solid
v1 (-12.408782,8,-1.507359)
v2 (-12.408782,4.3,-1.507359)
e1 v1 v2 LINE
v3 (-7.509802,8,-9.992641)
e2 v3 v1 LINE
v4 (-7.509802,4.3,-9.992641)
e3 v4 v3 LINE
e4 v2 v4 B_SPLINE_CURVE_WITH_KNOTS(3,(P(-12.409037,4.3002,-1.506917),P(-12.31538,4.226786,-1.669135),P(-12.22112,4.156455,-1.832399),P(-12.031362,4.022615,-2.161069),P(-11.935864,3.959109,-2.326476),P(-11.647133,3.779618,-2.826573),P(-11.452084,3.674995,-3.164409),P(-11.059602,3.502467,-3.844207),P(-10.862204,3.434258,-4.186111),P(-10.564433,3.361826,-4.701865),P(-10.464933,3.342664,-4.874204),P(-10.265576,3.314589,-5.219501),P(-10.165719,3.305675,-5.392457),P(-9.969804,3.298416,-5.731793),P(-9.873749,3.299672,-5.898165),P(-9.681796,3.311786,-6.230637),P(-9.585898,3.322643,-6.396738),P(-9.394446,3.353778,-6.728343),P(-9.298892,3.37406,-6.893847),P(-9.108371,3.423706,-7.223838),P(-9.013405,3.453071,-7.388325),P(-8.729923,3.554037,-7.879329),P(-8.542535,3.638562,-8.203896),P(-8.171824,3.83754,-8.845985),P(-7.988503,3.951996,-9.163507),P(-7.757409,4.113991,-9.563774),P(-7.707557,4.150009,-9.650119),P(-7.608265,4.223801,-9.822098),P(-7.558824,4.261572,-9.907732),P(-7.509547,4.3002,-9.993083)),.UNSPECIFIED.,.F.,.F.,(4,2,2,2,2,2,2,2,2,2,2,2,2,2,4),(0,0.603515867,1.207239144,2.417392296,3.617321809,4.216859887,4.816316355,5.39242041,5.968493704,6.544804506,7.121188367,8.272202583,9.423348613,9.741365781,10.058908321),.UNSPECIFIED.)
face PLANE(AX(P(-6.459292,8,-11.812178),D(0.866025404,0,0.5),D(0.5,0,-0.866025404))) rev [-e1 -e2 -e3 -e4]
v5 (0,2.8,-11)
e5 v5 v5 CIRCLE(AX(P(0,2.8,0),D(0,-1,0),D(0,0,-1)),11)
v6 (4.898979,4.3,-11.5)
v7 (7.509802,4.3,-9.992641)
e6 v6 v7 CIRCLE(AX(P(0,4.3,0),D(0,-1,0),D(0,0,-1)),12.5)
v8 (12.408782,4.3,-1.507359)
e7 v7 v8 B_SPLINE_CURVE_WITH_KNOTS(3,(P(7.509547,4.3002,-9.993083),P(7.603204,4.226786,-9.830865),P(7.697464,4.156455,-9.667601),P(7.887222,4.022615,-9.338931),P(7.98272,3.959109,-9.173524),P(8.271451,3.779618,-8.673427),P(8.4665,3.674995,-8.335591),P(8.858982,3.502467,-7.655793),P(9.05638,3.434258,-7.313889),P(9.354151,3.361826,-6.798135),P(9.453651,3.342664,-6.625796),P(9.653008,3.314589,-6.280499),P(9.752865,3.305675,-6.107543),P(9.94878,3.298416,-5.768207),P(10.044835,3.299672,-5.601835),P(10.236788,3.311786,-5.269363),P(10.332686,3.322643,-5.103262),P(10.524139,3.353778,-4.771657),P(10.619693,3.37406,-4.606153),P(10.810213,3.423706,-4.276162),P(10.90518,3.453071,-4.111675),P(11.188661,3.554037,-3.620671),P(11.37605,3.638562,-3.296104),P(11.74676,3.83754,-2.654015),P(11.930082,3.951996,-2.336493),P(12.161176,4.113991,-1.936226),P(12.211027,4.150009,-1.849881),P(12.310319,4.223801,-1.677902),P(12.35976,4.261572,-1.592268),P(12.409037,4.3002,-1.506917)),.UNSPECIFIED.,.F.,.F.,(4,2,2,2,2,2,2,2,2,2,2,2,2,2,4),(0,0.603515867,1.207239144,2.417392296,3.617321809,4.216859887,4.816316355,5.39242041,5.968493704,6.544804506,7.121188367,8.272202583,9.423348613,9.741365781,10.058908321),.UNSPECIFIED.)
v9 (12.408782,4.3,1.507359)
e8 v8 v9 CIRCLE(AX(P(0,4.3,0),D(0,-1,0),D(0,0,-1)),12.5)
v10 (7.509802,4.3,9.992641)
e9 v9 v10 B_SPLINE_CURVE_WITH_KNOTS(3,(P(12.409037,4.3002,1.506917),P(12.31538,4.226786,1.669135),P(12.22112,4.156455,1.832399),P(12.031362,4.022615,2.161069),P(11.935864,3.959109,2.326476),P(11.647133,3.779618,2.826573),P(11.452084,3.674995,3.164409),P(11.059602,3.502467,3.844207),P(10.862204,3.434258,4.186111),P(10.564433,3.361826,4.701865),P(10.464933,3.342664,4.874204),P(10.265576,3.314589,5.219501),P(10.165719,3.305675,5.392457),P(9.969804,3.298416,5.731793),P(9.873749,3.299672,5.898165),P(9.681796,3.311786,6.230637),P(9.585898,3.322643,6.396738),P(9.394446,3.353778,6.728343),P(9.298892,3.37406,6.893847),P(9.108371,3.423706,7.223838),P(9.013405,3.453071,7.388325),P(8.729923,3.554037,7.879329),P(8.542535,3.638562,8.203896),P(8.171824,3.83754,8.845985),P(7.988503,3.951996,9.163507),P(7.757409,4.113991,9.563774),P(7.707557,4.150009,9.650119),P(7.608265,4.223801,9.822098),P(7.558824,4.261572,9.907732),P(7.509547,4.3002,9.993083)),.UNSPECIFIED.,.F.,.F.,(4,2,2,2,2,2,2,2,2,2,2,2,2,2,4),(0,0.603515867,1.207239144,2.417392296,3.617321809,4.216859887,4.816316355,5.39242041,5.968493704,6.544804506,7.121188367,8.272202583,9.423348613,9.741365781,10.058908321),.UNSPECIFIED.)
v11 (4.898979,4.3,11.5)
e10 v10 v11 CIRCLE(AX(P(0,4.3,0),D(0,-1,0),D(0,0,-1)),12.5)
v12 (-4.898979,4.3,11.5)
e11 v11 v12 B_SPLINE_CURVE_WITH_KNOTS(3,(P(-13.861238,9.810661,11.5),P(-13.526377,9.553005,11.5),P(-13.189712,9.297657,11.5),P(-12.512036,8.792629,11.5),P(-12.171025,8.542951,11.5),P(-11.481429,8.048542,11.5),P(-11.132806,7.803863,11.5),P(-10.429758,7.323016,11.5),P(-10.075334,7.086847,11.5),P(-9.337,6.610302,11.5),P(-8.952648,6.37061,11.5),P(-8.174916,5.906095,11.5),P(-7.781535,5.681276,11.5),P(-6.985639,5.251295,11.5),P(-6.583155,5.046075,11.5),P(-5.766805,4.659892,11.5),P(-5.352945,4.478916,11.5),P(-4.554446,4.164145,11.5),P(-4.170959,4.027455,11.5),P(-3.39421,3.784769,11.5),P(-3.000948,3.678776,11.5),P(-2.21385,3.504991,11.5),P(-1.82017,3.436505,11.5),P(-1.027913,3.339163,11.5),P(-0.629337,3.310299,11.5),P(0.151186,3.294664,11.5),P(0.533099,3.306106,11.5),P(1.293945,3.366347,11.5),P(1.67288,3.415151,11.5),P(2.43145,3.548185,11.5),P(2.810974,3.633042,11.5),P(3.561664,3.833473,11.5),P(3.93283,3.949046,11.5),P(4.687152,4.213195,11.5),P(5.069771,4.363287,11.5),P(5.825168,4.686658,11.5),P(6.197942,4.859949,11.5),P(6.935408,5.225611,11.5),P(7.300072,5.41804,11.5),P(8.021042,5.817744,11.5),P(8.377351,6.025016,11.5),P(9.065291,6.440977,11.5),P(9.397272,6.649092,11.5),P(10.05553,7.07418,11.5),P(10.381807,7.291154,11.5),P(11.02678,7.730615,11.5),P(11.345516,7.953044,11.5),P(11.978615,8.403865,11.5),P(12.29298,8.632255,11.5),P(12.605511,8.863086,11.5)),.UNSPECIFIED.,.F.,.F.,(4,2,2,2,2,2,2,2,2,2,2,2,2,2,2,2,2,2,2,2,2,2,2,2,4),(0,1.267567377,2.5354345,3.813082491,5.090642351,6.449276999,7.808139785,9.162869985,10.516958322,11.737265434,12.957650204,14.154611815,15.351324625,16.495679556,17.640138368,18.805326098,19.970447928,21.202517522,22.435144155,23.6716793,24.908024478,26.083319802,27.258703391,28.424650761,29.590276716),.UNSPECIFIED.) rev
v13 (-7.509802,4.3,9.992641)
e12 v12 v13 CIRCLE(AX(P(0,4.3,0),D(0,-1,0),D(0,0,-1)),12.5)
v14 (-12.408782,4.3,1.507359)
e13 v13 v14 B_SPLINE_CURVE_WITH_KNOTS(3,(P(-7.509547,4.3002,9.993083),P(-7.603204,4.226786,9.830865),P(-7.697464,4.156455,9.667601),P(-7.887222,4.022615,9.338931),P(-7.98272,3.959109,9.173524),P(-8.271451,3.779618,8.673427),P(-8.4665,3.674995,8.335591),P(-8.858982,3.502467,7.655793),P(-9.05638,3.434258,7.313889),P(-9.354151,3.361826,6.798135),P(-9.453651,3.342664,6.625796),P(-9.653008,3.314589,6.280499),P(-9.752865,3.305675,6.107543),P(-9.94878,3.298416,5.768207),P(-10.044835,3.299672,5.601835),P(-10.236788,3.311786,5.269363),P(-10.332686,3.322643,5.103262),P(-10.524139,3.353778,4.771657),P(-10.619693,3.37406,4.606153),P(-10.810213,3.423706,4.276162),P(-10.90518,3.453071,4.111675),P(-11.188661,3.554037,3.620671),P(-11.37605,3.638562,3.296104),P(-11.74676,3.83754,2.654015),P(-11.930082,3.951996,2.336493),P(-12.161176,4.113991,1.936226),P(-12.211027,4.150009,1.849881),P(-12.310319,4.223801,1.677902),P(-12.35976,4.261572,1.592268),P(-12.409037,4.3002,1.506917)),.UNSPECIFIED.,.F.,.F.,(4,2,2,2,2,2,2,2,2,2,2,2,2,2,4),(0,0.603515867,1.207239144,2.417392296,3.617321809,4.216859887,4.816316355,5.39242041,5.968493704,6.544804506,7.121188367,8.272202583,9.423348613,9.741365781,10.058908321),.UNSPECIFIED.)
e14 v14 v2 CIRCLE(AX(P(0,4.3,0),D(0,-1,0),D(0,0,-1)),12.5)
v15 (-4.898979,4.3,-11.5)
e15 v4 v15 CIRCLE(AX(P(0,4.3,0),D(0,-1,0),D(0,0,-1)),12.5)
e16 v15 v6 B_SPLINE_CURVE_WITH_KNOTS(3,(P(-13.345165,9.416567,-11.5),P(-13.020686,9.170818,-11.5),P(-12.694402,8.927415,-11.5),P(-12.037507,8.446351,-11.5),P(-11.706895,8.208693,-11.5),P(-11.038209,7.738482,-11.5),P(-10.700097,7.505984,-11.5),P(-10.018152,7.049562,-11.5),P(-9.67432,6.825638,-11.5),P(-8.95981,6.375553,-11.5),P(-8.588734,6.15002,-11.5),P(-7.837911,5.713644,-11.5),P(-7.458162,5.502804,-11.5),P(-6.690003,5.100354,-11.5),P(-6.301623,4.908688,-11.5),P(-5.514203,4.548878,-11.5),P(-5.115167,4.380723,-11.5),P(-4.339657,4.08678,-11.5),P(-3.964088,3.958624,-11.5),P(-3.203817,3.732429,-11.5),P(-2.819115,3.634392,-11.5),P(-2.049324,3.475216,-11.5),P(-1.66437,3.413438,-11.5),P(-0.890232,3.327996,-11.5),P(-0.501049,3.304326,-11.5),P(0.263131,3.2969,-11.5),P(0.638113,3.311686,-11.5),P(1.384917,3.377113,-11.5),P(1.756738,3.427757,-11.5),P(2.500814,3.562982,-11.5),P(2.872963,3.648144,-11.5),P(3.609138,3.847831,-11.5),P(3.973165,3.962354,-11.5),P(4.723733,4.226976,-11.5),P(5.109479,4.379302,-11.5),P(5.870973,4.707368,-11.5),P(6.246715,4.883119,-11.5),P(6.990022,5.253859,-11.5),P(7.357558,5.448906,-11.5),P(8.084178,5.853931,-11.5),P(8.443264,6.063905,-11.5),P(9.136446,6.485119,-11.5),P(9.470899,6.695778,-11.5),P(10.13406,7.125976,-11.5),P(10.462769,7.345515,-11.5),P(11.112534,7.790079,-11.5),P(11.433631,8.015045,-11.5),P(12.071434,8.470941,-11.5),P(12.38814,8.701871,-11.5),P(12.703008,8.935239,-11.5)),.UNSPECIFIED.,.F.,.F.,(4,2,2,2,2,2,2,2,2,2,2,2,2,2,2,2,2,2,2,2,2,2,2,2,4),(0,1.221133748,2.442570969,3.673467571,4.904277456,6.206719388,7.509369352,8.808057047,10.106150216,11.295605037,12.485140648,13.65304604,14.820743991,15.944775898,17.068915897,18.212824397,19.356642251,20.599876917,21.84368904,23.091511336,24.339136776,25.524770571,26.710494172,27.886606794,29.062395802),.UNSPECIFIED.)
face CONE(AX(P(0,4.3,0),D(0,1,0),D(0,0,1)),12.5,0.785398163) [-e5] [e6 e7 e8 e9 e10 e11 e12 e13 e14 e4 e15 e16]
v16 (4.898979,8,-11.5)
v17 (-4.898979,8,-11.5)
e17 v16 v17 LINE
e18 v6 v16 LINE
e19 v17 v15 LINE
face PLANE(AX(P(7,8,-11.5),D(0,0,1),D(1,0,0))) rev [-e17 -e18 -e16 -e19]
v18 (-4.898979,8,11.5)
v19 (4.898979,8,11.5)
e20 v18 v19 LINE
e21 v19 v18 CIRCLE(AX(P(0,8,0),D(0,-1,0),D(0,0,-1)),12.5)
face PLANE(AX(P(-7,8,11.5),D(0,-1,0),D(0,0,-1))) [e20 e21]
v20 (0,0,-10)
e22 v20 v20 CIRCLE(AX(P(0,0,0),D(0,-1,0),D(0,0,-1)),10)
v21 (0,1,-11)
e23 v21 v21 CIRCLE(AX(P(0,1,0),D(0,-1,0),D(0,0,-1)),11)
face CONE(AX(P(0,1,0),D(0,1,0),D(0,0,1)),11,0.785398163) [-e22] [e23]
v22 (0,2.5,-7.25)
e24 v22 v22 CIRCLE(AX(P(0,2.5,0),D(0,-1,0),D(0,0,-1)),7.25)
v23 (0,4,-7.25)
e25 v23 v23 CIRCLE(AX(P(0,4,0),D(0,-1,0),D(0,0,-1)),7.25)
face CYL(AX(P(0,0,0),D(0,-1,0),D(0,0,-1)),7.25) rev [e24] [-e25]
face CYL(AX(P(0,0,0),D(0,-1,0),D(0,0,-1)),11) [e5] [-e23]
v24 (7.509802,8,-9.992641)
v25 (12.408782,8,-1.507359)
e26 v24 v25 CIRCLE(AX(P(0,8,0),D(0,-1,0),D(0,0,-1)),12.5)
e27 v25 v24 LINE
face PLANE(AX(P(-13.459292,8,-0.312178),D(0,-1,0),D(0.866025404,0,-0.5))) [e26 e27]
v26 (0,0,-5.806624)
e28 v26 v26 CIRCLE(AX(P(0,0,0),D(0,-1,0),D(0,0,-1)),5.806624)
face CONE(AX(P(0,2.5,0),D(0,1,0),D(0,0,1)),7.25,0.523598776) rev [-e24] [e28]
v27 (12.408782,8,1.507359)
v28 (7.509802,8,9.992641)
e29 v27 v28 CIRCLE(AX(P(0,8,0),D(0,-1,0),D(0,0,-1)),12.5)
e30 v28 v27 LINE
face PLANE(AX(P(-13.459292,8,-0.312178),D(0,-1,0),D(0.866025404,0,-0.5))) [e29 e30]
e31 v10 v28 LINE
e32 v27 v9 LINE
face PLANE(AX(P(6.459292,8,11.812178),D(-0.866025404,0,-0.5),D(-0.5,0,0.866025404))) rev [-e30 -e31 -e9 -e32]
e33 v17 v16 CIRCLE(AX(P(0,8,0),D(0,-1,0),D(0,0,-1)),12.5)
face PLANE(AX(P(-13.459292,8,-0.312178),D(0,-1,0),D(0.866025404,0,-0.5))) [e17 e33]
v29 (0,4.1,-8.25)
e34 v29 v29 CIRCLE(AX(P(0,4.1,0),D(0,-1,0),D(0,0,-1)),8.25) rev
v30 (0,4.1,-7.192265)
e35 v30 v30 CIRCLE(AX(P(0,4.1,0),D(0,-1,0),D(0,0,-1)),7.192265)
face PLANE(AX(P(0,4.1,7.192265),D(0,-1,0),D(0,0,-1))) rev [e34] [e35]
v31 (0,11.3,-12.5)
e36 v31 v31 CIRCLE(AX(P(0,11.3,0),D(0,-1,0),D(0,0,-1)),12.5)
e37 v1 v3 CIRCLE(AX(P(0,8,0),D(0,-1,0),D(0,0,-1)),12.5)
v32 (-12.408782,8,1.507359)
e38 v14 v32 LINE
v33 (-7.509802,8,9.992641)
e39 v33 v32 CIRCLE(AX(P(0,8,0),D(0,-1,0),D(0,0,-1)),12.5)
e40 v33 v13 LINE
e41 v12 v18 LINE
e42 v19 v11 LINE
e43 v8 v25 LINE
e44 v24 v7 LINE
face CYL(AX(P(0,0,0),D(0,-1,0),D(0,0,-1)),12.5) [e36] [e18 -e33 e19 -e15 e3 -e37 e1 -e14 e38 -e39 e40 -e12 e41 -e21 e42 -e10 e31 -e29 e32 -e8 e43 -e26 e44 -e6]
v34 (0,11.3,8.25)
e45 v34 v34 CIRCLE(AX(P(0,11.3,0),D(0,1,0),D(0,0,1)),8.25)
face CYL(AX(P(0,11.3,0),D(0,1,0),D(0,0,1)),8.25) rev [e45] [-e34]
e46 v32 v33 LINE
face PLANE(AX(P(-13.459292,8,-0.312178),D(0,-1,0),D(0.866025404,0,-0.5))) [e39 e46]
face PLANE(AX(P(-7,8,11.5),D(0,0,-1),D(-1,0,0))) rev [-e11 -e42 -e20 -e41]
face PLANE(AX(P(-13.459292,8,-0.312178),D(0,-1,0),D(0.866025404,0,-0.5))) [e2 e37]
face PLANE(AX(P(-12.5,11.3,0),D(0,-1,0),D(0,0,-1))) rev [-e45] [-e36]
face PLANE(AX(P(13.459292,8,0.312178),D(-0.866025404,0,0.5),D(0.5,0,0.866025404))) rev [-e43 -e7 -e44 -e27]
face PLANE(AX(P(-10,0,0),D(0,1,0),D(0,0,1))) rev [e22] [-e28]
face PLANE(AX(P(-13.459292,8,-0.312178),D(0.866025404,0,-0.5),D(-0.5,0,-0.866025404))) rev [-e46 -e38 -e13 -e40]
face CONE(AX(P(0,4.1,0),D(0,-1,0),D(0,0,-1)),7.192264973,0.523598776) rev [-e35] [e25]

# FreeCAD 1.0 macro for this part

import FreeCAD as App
import Part
import Sketcher

V = App.Vector
Q = App.Units.Quantity

doc = App.newDocument("Part")
body = doc.addObject("PartDesign::Body", "Body")

# Sketch on XY plane
sketch1 = body.newObject("Sketcher::SketchObject", "Sketch")
sketch1.AttachmentSupport = (doc.getObject("XY_Plane"), [""])
sketch1.MapMode = "FlatFace"
sketch1.addGeometry([
    Part.LineSegment(V(-12.5, 11.3, 0), V(-12.5, 4.3, 0)),  # 0
    Part.LineSegment(V(-12.5, 4.3, 0), V(-11, 2.8, 0)),  # 1
    Part.LineSegment(V(-11, 2.8, 0), V(-11, 1, 0)),  # 2
    Part.LineSegment(V(-11, 1, 0), V(-10, 0, 0)),  # 3
    Part.LineSegment(V(-10, 0, 0), V(0, 0, 0)),  # 4
    Part.LineSegment(V(0, 0, 0), V(0, 11.3, 0)),  # 5
    Part.LineSegment(V(0, 11.3, 0), V(-12.5, 11.3, 0)),  # 6
], False)
sketch1.addConstraint([
    Sketcher.Constraint("Coincident", 0, 2, 1, 1),
    Sketcher.Constraint("Coincident", 1, 2, 2, 1),
    Sketcher.Constraint("Coincident", 2, 2, 3, 1),
    Sketcher.Constraint("Coincident", 3, 2, 4, 1),
    Sketcher.Constraint("Coincident", 4, 2, 5, 1),
    Sketcher.Constraint("Coincident", 5, 2, 6, 1),
    Sketcher.Constraint("Coincident", 6, 2, 0, 1),
    Sketcher.Constraint("Vertical", 0),
    Sketcher.Constraint("Vertical", 2),
    Sketcher.Constraint("Horizontal", 4),
    Sketcher.Constraint("Vertical", 5),
    Sketcher.Constraint("Horizontal", 6),
    Sketcher.Constraint("Coincident", 4, 2, -1, 1),
    Sketcher.Constraint("Parallel", 1, 3),
    Sketcher.Constraint("DistanceX", 4, 1, 4, 2, Q("10 mm")),
    Sketcher.Constraint("DistanceY", 0, 2, 0, 1, Q("7 mm")),
    Sketcher.Constraint("Angle", 1, Q("-45 deg")),
    Sketcher.Constraint("DistanceX", 6, 2, 6, 1, Q("12.5 mm")),
    Sketcher.Constraint("DistanceY", 2, 2, 2, 1, Q("1.8 mm")),
    Sketcher.Constraint("DistanceX", 1, 2, -1, 1, Q("11 mm")),
])
revolution = body.newObject("PartDesign::Revolution", "Revolution")
revolution.Profile = sketch1
revolution.ReferenceAxis = (sketch1, ["V_Axis"])
revolution.Angle = 360

# Sketch on YZ plane
sketch2 = body.newObject("Sketcher::SketchObject", "Sketch001")
sketch2.AttachmentSupport = (doc.getObject("YZ_Plane"), [""])
sketch2.MapMode = "FlatFace"
sketch2.addGeometry([
    Part.LineSegment(V(2.5, 7.25, 0), V(0, 5.806624, 0)),  # 0
    Part.LineSegment(V(0, 5.806624, 0), V(0, 0, 0)),  # 1
    Part.LineSegment(V(0, 0, 0), V(4.1, 0, 0)),  # 2
    Part.LineSegment(V(4.1, 0, 0), V(4.1, 7.192265, 0)),  # 3
    Part.LineSegment(V(4.1, 7.192265, 0), V(4, 7.25, 0)),  # 4
    Part.LineSegment(V(4, 7.25, 0), V(2.5, 7.25, 0)),  # 5
], False)
sketch2.addConstraint([
    Sketcher.Constraint("Coincident", 0, 2, 1, 1),
    Sketcher.Constraint("Coincident", 1, 2, 2, 1),
    Sketcher.Constraint("Coincident", 2, 2, 3, 1),
    Sketcher.Constraint("Coincident", 3, 2, 4, 1),
    Sketcher.Constraint("Coincident", 4, 2, 5, 1),
    Sketcher.Constraint("Coincident", 5, 2, 0, 1),
    Sketcher.Constraint("Vertical", 1),
    Sketcher.Constraint("Horizontal", 2),
    Sketcher.Constraint("Vertical", 3),
    Sketcher.Constraint("Horizontal", 5),
    Sketcher.Constraint("Coincident", 1, 2, -1, 1),
    Sketcher.Constraint("Angle", 0, Q("-150 deg")),
    Sketcher.Constraint("Angle", 4, Q("150 deg")),
    Sketcher.Constraint("DistanceX", 2, 1, 2, 2, Q("4.1 mm")),
    Sketcher.Constraint("DistanceX", 5, 2, 5, 1, Q("1.5 mm")),
    Sketcher.Constraint("DistanceX", -1, 1, 4, 2, Q("4 mm")),
    Sketcher.Constraint("DistanceY", -1, 1, 4, 2, Q("7.25 mm")),
])
groove = body.newObject("PartDesign::Groove", "Groove")
groove.Profile = sketch2
groove.ReferenceAxis = (sketch2, ["H_Axis"])
groove.Angle = 360

# Sketch on XZ plane
sketch3 = body.newObject("Sketcher::SketchObject", "Sketch002")
sketch3.AttachmentSupport = (doc.getObject("XZ_Plane"), [""])
sketch3.MapMode = "FlatFace"
sketch3.AttachmentOffset = App.Placement(V(0, 0, -11.3), App.Rotation())
sketch3.addGeometry(Part.Circle(V(0, 0, 0), V(0, 0, 1), 8.25), False)
sketch3.addConstraint([
    Sketcher.Constraint("Coincident", 0, 3, -1, 1),
    Sketcher.Constraint("Diameter", 0, Q("16.5 mm")),
])
doc.recompute()
hole = body.newObject("PartDesign::Hole", "Hole")
hole.Profile = sketch3
hole.ThreadType = "None"
hole.Diameter = 16.5
hole.DepthType = "Dimension"
hole.Depth = 7.2
hole.DrillPoint = "Flat"
hole.Reversed = True

# Sketch on XZ plane
sketch4 = body.newObject("Sketcher::SketchObject", "Sketch003")
sketch4.AttachmentSupport = (doc.getObject("XZ_Plane"), [""])
sketch4.MapMode = "FlatFace"
sketch4.addGeometry([
    Part.LineSegment(V(-7, 12.5, 0), V(-7, 11.5, 0)),
    Part.LineSegment(V(-7, 11.5, 0), V(7, 11.5, 0)),
    Part.LineSegment(V(7, 11.5, 0), V(7, 12.5, 0)),
    Part.LineSegment(V(7, 12.5, 0), V(-7, 12.5, 0)),
], False)
sketch4.addConstraint([
    Sketcher.Constraint("Coincident", 0, 2, 1, 1),
    Sketcher.Constraint("Coincident", 1, 2, 2, 1),
    Sketcher.Constraint("Coincident", 2, 2, 3, 1),
    Sketcher.Constraint("Coincident", 3, 2, 0, 1),
    Sketcher.Constraint("Vertical", 0),
    Sketcher.Constraint("Horizontal", 1),
    Sketcher.Constraint("Vertical", 2),
    Sketcher.Constraint("Horizontal", 3),
    Sketcher.Constraint("DistanceX", 1, 1, 1, 2, Q("14 mm")),
    Sketcher.Constraint("DistanceY", 0, 2, 0, 1, Q("1 mm")),
    Sketcher.Constraint("DistanceX", 0, 2, -1, 1, Q("7 mm")),
    Sketcher.Constraint("DistanceY", -1, 1, 0, 2, Q("11.5 mm")),
])
pocket1 = body.newObject("PartDesign::Pocket", "Pocket")
pocket1.Profile = sketch4
pocket1.Length = 8
doc.recompute()

polarpattern = body.newObject("PartDesign::PolarPattern", "PolarPattern")
polarpattern.Originals = [pocket1]
polarpattern.Axis = (doc.getObject("Y_Axis"), [""])
polarpattern.Angle = 360
polarpattern.Occurrences = 6
body.Tip = polarpattern

doc.recompute()
